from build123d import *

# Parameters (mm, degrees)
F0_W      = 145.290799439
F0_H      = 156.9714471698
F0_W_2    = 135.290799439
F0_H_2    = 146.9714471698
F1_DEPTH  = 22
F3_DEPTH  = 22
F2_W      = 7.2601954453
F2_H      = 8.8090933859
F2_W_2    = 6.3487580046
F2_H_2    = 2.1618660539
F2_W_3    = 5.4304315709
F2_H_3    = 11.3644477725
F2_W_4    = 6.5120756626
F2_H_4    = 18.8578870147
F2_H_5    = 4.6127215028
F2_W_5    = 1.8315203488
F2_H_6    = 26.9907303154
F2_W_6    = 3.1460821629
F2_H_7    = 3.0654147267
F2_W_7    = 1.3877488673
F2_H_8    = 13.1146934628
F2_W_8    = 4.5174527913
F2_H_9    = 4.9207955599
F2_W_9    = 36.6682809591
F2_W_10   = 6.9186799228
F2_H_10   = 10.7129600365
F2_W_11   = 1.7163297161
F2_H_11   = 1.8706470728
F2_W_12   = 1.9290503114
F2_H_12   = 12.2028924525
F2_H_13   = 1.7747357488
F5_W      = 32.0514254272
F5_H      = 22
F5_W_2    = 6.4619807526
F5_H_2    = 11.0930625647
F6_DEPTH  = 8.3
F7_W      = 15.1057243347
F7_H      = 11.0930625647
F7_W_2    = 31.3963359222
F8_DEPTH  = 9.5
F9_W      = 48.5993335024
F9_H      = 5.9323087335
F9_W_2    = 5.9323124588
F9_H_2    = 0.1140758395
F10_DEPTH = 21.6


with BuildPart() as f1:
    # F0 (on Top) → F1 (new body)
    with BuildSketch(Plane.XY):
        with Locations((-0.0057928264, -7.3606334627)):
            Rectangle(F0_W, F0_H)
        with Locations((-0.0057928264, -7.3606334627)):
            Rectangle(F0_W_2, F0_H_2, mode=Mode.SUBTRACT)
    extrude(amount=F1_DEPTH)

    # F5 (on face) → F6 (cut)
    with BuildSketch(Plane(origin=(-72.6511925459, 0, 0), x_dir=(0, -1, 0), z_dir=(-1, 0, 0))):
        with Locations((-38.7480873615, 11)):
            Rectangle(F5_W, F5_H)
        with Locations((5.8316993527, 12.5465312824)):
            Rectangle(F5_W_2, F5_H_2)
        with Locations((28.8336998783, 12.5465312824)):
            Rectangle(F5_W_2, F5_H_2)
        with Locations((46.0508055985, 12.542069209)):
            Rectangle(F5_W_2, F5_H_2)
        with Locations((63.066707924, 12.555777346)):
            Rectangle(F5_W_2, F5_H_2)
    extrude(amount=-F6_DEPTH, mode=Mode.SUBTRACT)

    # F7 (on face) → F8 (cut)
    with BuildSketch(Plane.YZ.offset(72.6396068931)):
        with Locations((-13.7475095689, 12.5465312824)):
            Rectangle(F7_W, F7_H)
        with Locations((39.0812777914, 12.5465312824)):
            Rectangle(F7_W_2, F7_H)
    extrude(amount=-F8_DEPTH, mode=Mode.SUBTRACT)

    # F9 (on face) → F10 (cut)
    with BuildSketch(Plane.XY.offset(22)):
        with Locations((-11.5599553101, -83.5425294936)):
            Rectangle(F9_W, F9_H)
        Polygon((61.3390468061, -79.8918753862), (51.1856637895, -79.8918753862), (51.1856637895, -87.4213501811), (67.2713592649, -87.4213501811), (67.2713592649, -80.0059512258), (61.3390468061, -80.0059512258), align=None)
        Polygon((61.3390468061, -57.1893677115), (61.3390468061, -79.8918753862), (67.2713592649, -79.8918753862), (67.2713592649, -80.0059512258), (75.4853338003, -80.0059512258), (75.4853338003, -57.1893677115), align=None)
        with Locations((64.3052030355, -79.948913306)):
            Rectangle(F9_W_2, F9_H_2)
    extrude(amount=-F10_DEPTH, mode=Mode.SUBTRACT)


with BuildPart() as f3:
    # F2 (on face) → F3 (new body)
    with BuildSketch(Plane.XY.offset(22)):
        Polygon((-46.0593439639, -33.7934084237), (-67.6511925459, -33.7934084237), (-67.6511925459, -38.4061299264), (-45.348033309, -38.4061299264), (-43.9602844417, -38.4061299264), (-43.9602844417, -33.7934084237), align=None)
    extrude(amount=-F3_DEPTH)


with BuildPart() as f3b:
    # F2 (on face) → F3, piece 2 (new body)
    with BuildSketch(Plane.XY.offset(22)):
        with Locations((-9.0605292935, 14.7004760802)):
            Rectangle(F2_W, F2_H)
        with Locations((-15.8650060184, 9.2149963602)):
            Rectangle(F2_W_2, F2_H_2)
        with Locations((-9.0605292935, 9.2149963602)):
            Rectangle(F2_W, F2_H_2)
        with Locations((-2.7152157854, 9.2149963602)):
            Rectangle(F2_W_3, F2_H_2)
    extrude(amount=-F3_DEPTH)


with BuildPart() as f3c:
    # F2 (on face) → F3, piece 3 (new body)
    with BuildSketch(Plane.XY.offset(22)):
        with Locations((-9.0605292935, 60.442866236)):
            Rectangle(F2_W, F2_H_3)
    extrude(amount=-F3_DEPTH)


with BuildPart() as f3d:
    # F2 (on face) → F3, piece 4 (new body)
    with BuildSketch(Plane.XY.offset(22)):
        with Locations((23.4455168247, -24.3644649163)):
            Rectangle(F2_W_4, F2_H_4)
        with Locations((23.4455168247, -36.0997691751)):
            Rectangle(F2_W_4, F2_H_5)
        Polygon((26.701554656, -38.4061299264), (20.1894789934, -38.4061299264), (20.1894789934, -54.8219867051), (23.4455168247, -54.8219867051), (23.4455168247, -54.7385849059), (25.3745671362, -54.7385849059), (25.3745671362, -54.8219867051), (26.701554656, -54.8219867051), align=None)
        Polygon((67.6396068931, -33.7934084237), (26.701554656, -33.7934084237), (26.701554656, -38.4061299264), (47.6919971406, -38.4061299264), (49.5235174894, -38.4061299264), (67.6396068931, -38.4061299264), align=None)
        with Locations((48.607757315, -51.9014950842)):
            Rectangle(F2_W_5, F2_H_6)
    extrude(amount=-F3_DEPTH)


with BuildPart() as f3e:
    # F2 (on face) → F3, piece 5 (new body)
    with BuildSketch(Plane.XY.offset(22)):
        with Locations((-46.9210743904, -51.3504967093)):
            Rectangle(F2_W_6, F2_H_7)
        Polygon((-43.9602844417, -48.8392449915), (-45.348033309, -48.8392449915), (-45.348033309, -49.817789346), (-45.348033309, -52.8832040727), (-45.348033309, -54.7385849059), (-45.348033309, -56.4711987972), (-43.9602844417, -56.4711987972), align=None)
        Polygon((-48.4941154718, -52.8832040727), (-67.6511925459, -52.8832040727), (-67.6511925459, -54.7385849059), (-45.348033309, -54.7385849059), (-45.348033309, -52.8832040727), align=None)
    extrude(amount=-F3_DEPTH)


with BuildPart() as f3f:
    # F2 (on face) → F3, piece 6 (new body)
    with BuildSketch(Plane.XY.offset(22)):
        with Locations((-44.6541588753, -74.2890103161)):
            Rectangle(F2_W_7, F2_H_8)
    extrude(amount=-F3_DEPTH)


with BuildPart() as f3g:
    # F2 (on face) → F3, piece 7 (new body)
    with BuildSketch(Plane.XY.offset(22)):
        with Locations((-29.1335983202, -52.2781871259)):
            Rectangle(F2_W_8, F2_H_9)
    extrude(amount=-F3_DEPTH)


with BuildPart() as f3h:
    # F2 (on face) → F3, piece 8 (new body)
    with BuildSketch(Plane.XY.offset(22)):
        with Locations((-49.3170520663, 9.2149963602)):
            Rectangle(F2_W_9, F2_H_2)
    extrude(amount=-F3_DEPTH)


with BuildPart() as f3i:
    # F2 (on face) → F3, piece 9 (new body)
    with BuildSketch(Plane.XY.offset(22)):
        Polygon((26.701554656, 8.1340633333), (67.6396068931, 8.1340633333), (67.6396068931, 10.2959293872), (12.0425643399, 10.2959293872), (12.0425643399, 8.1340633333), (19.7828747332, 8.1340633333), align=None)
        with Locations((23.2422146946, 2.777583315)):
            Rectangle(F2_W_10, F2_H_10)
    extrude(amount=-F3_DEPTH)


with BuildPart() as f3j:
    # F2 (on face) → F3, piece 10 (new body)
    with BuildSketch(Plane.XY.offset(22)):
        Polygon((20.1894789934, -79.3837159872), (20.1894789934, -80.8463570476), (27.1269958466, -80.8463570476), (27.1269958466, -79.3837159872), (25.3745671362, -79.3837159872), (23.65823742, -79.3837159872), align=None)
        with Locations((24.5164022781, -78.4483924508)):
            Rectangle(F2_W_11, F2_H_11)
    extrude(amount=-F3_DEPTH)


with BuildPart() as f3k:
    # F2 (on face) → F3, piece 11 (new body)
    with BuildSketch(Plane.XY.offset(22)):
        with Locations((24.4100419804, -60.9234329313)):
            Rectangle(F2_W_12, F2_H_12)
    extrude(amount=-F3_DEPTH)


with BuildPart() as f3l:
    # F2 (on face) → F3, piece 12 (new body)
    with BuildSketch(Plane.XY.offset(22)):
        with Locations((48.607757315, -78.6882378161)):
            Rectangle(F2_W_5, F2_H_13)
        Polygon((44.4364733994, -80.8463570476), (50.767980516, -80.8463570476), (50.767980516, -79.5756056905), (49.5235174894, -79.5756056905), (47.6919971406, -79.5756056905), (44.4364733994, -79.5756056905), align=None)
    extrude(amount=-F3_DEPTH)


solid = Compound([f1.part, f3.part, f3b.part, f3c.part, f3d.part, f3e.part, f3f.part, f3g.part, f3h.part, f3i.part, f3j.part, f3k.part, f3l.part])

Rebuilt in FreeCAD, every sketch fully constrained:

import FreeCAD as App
import Part
import Sketcher
Q = App.Units.Quantity


def add_polygon(sketch, points):
    """Adds a closed chain of lines whose ends are joined by coincident constraints."""
    first, n = sketch.GeometryCount, len(points)
    for a, b in zip(points, points[1:] + points[:1]):
        sketch.addGeometry(Part.LineSegment(App.Vector(*a, 0), App.Vector(*b, 0)), False)
    for i in range(n):
        sketch.addConstraint(Sketcher.Constraint("Coincident", first + i, 2, first + (i + 1) % n, 1))

doc = App.newDocument("Part")
body = doc.addObject("PartDesign::Body", "Body")

# Sketch on XY plane
sketch1 = body.newObject("Sketcher::SketchObject", "Sketch")
sketch1.AttachmentSupport = (doc.getObject("XY_Plane"), [""])
sketch1.MapMode = "FlatFace"
add_polygon(sketch1, [(-73, 71), (-73, -86), (73, -86), (73, 71)])  # lines 0-3
add_polygon(sketch1, [(68, -81), (-68, -81), (-68, 66), (68, 66)])  # lines 4-7
sketch1.addConstraint([
    Sketcher.Constraint("Vertical", 0),
    Sketcher.Constraint("Horizontal", 1),
    Sketcher.Constraint("Vertical", 2),
    Sketcher.Constraint("Horizontal", 3),
    Sketcher.Constraint("Horizontal", 4),
    Sketcher.Constraint("Vertical", 5),
    Sketcher.Constraint("Horizontal", 6),
    Sketcher.Constraint("Vertical", 7),
    Sketcher.Constraint("DistanceX", 0, 2, 4, 2, Q("5 mm")),
    Sketcher.Constraint("DistanceY", 0, 2, 4, 2, Q("5 mm")),
    Sketcher.Constraint("DistanceY", 5, 2, 3, 2, Q("5 mm")),
    Sketcher.Constraint("DistanceX", 6, 2, 2, 2, Q("5 mm")),
    Sketcher.Constraint("DistanceX", 1, 1, 1, 2, Q("145.290799 mm")),
    Sketcher.Constraint("DistanceY", 0, 2, 0, 1, Q("156.971447 mm")),
    Sketcher.Constraint("DistanceY", -1, 1, 2, 2, Q("71.12509 mm")),
    Sketcher.Constraint("DistanceX", 0, 2, -1, 1, Q("72.651193 mm")),
])
pad1 = body.newObject("PartDesign::Pad", "Pad")
pad1.Profile = sketch1
pad1.Length = 22

# Sketch on YZ plane
sketch2 = body.newObject("Sketcher::SketchObject", "Sketch001")
sketch2.AttachmentSupport = (doc.getObject("YZ_Plane"), [""])
sketch2.MapMode = "FlatFace"
sketch2.AttachmentOffset = App.Placement(App.Vector(0, 0, -72.651193), App.Rotation())
add_polygon(sketch2, [(55, 22), (55, 0), (23, 0), (23, 22)])  # lines 0-3
add_polygon(sketch2, [(-3, 18), (-3, 7), (-9, 7), (-9, 18)])  # lines 4-7
add_polygon(sketch2, [(-26, 18), (-26, 7), (-32, 7), (-32, 18)])  # lines 8-11
add_polygon(sketch2, [(-43, 18), (-43, 7), (-49, 7), (-49, 18)])  # lines 12-15
add_polygon(sketch2, [(-60, 18), (-60, 7), (-66, 7), (-66, 18)])  # lines 16-19
sketch2.addConstraint([
    Sketcher.Constraint("Vertical", 0),
    Sketcher.Constraint("Horizontal", 1),
    Sketcher.Constraint("Vertical", 2),
    Sketcher.Constraint("Horizontal", 3),
    Sketcher.Constraint("Vertical", 4),
    Sketcher.Constraint("Horizontal", 5),
    Sketcher.Constraint("Vertical", 6),
    Sketcher.Constraint("Horizontal", 7),
    Sketcher.Constraint("Vertical", 8),
    Sketcher.Constraint("Horizontal", 9),
    Sketcher.Constraint("Vertical", 10),
    Sketcher.Constraint("Horizontal", 11),
    Sketcher.Constraint("Vertical", 12),
    Sketcher.Constraint("Horizontal", 13),
    Sketcher.Constraint("Vertical", 14),
    Sketcher.Constraint("Horizontal", 15),
    Sketcher.Constraint("Vertical", 16),
    Sketcher.Constraint("Horizontal", 17),
    Sketcher.Constraint("Vertical", 18),
    Sketcher.Constraint("Horizontal", 19),
    Sketcher.Constraint("PointOnObject", 0, 2, -1),
    Sketcher.Constraint("Horizontal", 5, 2, 8, 2),
    Sketcher.Constraint("Horizontal", 7, 2, 10, 2),
    Sketcher.Constraint("Equal", 7, 9),
    Sketcher.Constraint("Equal", 11, 13),
    Sketcher.Constraint("Equal", 15, 17),
    Sketcher.Constraint("Equal", 10, 12),
    Sketcher.Constraint("Equal", 14, 16),
    Sketcher.Constraint("DistanceY", 0, 2, 0, 1, Q("22 mm")),
    Sketcher.Constraint("DistanceY", -1, 1, 4, 2, Q("7 mm")),
    Sketcher.Constraint("DistanceX", 8, 2, 4, 2, Q("23.002001 mm")),
    Sketcher.Constraint("DistanceX", 5, 2, 5, 1, Q("6.461981 mm")),
    Sketcher.Constraint("DistanceX", -1, 1, 0, 2, Q("54.7738 mm")),
    Sketcher.Constraint("DistanceY", -1, 1, 14, 2, Q("18.0886 mm")),
    Sketcher.Constraint("DistanceX", 17, 2, -1, 1, Q("66.297698 mm")),
    Sketcher.Constraint("DistanceX", 1, 2, 1, 1, Q("32.051425 mm")),
    Sketcher.Constraint("DistanceY", 4, 2, 4, 1, Q("11.093063 mm")),
    Sketcher.Constraint("DistanceX", 4, 2, -1, 1, Q("2.600709 mm")),
    Sketcher.Constraint("DistanceY", -1, 1, 18, 2, Q("18.102309 mm")),
    Sketcher.Constraint("DistanceX", 16, 2, 13, 2, Q("10.553922 mm")),
])
pocket1 = body.newObject("PartDesign::Pocket", "Pocket")
pocket1.Profile = sketch2
pocket1.Length = 8.3
pocket1.Reversed = True

# Sketch on YZ plane
sketch3 = body.newObject("Sketcher::SketchObject", "Sketch002")
sketch3.AttachmentSupport = (doc.getObject("YZ_Plane"), [""])
sketch3.MapMode = "FlatFace"
sketch3.AttachmentOffset = App.Placement(App.Vector(0, 0, 72.639607), App.Rotation())
add_polygon(sketch3, [(-21, 18), (-21, 7), (-6, 7), (-6, 18)])  # lines 0-3
add_polygon(sketch3, [(23, 18), (23, 7), (55, 7), (55, 18)])  # lines 4-7
sketch3.addConstraint([
    Sketcher.Constraint("Vertical", 0),
    Sketcher.Constraint("Horizontal", 1),
    Sketcher.Constraint("Vertical", 2),
    Sketcher.Constraint("Horizontal", 3),
    Sketcher.Constraint("Vertical", 4),
    Sketcher.Constraint("Horizontal", 5),
    Sketcher.Constraint("Vertical", 6),
    Sketcher.Constraint("Horizontal", 7),
    Sketcher.Constraint("Horizontal", 1, 2, 4, 2),
    Sketcher.Constraint("Horizontal", 3, 2, 6, 2),
    Sketcher.Constraint("DistanceY", -1, 1, 0, 2, Q("7 mm")),
    Sketcher.Constraint("DistanceX", 1, 1, 1, 2, Q("15.105724 mm")),
    Sketcher.Constraint("DistanceX", 5, 1, 5, 2, Q("31.396336 mm")),
    Sketcher.Constraint("DistanceY", 0, 2, 0, 1, Q("11.093063 mm")),
    Sketcher.Constraint("DistanceX", 0, 2, -1, 1, Q("21.300372 mm")),
    Sketcher.Constraint("DistanceX", -1, 1, 4, 2, Q("23.38311 mm")),
])
pocket2 = body.newObject("PartDesign::Pocket", "Pocket001")
pocket2.Profile = sketch3
pocket2.Length = 9.5

# Sketch on XY plane
sketch4 = body.newObject("Sketcher::SketchObject", "Sketch003")
sketch4.AttachmentSupport = (doc.getObject("XY_Plane"), [""])
sketch4.MapMode = "FlatFace"
sketch4.AttachmentOffset = App.Placement(App.Vector(0, 0, 22), App.Rotation())
add_polygon(sketch4, [(-36, -81), (-36, -87), (13, -87), (13, -81)])  # lines 0-3
add_polygon(sketch4, [(61, -80), (51, -80), (51, -87), (67, -87), (67, -80), (75, -80), (75, -57), (61, -57)])  # lines 4-11
sketch4.addConstraint([
    Sketcher.Constraint("Vertical", 0),
    Sketcher.Constraint("Horizontal", 1),
    Sketcher.Constraint("Vertical", 2),
    Sketcher.Constraint("Horizontal", 3),
    Sketcher.Constraint("Horizontal", 4),
    Sketcher.Constraint("Vertical", 5),
    Sketcher.Constraint("Horizontal", 6),
    Sketcher.Constraint("Vertical", 7),
    Sketcher.Constraint("Horizontal", 8),
    Sketcher.Constraint("Vertical", 9),
    Sketcher.Constraint("Horizontal", 10),
    Sketcher.Constraint("Vertical", 11),
    Sketcher.Constraint("DistanceY", 7, 1, 7, 2, Q("7.415399 mm")),
    Sketcher.Constraint("DistanceY", 0, 2, 0, 1, Q("5.932309 mm")),
    Sketcher.Constraint("DistanceY", 2, 2, 4, 2, Q("0.6845 mm")),
    Sketcher.Constraint("DistanceX", 1, 1, 1, 2, Q("48.599334 mm")),
    Sketcher.Constraint("DistanceX", 4, 2, 4, 1, Q("10.153383 mm")),
    Sketcher.Constraint("DistanceX", 6, 1, 6, 2, Q("16.085695 mm")),
    Sketcher.Constraint("DistanceX", 8, 1, 8, 2, Q("8.213975 mm")),
    Sketcher.Constraint("DistanceY", 5, 2, 5, 1, Q("7.529475 mm")),
    Sketcher.Constraint("DistanceY", 9, 1, 9, 2, Q("22.816584 mm")),
    Sketcher.Constraint("DistanceX", -1, 1, 1, 2, Q("12.739711 mm")),
    Sketcher.Constraint("DistanceY", 5, 2, -1, 1, Q("87.42135 mm")),
    Sketcher.Constraint("DistanceX", -1, 1, 6, 2, Q("67.271359 mm")),
])
pocket3 = body.newObject("PartDesign::Pocket", "Pocket002")
pocket3.Profile = sketch4
pocket3.Length = 21.6
body2 = doc.addObject("PartDesign::Body", "Body001")

# Sketch on XY plane
sketch5 = body2.newObject("Sketcher::SketchObject", "Sketch004")
sketch5.AttachmentSupport = (doc.getObject("XY_Plane001"), [""])
sketch5.MapMode = "FlatFace"
sketch5.AttachmentOffset = App.Placement(App.Vector(0, 0, 22), App.Rotation())
add_polygon(sketch5, [(-67.7, -33.8), (-67.7, -38.4), (-44, -38.4), (-44, -33.8)])  # lines 0-3
sketch5.addConstraint([
    Sketcher.Constraint("Vertical", 0),
    Sketcher.Constraint("Horizontal", 1),
    Sketcher.Constraint("Vertical", 2),
    Sketcher.Constraint("Horizontal", 3),
    Sketcher.Constraint("DistanceX", 1, 1, 1, 2, Q("23.690908 mm")),
    Sketcher.Constraint("DistanceY", 0, 2, 0, 1, Q("4.612722 mm")),
    Sketcher.Constraint("DistanceY", 0, 2, -1, 1, Q("38.40613 mm")),
    Sketcher.Constraint("DistanceX", 0, 2, -1, 1, Q("67.651193 mm")),
])
pad2 = body2.newObject("PartDesign::Pad", "Pad001")
pad2.Profile = sketch5
pad2.Length = 22
pad2.Reversed = True
body3 = doc.addObject("PartDesign::Body", "Body002")

# Sketch on XY plane
sketch6 = body3.newObject("Sketcher::SketchObject", "Sketch005")
sketch6.AttachmentSupport = (doc.getObject("XY_Plane002"), [""])
sketch6.MapMode = "FlatFace"
sketch6.AttachmentOffset = App.Placement(App.Vector(0, 0, 22), App.Rotation())
add_polygon(sketch6, [(-12.7, 19.1), (-12.7, 10.3), (-19, 10.3), (-19, 8.1), (0, 8.1), (0, 10.3), (-5.4, 10.3), (-5.4, 19.1)])  # lines 0-7
sketch6.addConstraint([
    Sketcher.Constraint("Vertical", 0),
    Sketcher.Constraint("Horizontal", 1),
    Sketcher.Constraint("Vertical", 2),
    Sketcher.Constraint("Horizontal", 3),
    Sketcher.Constraint("Vertical", 4),
    Sketcher.Constraint("Horizontal", 5),
    Sketcher.Constraint("Vertical", 6),
    Sketcher.Constraint("Horizontal", 7),
    Sketcher.Constraint("PointOnObject", 3, 2, -2),
    Sketcher.Constraint("Horizontal", 1, 2, 4, 2),
    Sketcher.Constraint("DistanceX", 1, 2, 1, 1, Q("6.348758 mm")),
    Sketcher.Constraint("DistanceX", 5, 2, 5, 1, Q("5.430432 mm")),
    Sketcher.Constraint("DistanceX", 3, 1, 3, 2, Q("19.039385 mm")),
    Sketcher.Constraint("DistanceY", 0, 2, 0, 1, Q("8.809093 mm")),
    Sketcher.Constraint("DistanceY", 2, 2, 2, 1, Q("2.161866 mm")),
    Sketcher.Constraint("DistanceY", -1, 1, 0, 2, Q("10.295929 mm")),
])
pad3 = body3.newObject("PartDesign::Pad", "Pad002")
pad3.Profile = sketch6
pad3.Length = 22
pad3.Reversed = True
body4 = doc.addObject("PartDesign::Body", "Body003")

# Sketch on XY plane
sketch7 = body4.newObject("Sketcher::SketchObject", "Sketch006")
sketch7.AttachmentSupport = (doc.getObject("XY_Plane003"), [""])
sketch7.MapMode = "FlatFace"
sketch7.AttachmentOffset = App.Placement(App.Vector(0, 0, 22), App.Rotation())
add_polygon(sketch7, [(-13, 66), (-13, 55), (-5, 55), (-5, 66)])  # lines 0-3
sketch7.addConstraint([
    Sketcher.Constraint("Vertical", 0),
    Sketcher.Constraint("Horizontal", 1),
    Sketcher.Constraint("Vertical", 2),
    Sketcher.Constraint("Horizontal", 3),
    Sketcher.Constraint("DistanceX", 1, 1, 1, 2, Q("7.260195 mm")),
    Sketcher.Constraint("DistanceY", 0, 2, 0, 1, Q("11.364448 mm")),
    Sketcher.Constraint("DistanceX", 1, 2, -1, 1, Q("5.430432 mm")),
    Sketcher.Constraint("DistanceY", -1, 1, 2, 2, Q("66.12509 mm")),
])
pad4 = body4.newObject("PartDesign::Pad", "Pad003")
pad4.Profile = sketch7
pad4.Length = 22
pad4.Reversed = True
body5 = doc.addObject("PartDesign::Body", "Body004")

# Sketch on XY plane
sketch8 = body5.newObject("Sketcher::SketchObject", "Sketch007")
sketch8.AttachmentSupport = (doc.getObject("XY_Plane004"), [""])
sketch8.MapMode = "FlatFace"
sketch8.AttachmentOffset = App.Placement(App.Vector(0, 0, 22), App.Rotation())
add_polygon(sketch8, [(20.19, -14.94), (20.19, -54.82), (23.45, -54.82), (23.45, -54.74), (25.37, -54.74), (25.37, -54.82), (26.7, -54.82), (26.7, -38.41), (47.69, -38.41), (47.69, -65.4), (49.52, -65.4), (49.52, -38.41), (67.64, -38.41), (67.64, -33.79), (26.7, -33.79), (26.7, -14.94)])  # lines 0-15
sketch8.addConstraint([
    Sketcher.Constraint("Vertical", 0),
    Sketcher.Constraint("Horizontal", 1),
    Sketcher.Constraint("Vertical", 2),
    Sketcher.Constraint("Horizontal", 3),
    Sketcher.Constraint("Vertical", 4),
    Sketcher.Constraint("Horizontal", 5),
    Sketcher.Constraint("Vertical", 6),
    Sketcher.Constraint("Horizontal", 7),
    Sketcher.Constraint("Vertical", 8),
    Sketcher.Constraint("Horizontal", 9),
    Sketcher.Constraint("Vertical", 10),
    Sketcher.Constraint("Horizontal", 11),
    Sketcher.Constraint("Vertical", 12),
    Sketcher.Constraint("Horizontal", 13),
    Sketcher.Constraint("Vertical", 14),
    Sketcher.Constraint("Horizontal", 15),
    Sketcher.Constraint("Horizontal", 1, 2, 4, 2),
    Sketcher.Constraint("Horizontal", 7, 2, 10, 2),
    Sketcher.Constraint("Vertical", 6, 2, 13, 2),
    Sketcher.Constraint("DistanceY", 2, 1, 2, 2, Q("0.083402 mm")),
    Sketcher.Constraint("DistanceX", 3, 1, 3, 2, Q("1.92905 mm")),
    Sketcher.Constraint("DistanceX", 9, 1, 9, 2, Q("1.83152 mm")),
    Sketcher.Constraint("DistanceX", 11, 1, 11, 2, Q("18.116089 mm")),
    Sketcher.Constraint("DistanceY", 8, 2, 8, 1, Q("26.99073 mm")),
    Sketcher.Constraint("DistanceY", 12, 1, 12, 2, Q("4.612722 mm")),
    Sketcher.Constraint("DistanceX", 1, 1, 1, 2, Q("3.256038 mm")),
    Sketcher.Constraint("DistanceX", 5, 1, 5, 2, Q("1.326988 mm")),
    Sketcher.Constraint("DistanceX", 7, 1, 7, 2, Q("20.990442 mm")),
    Sketcher.Constraint("DistanceY", 0, 2, 0, 1, Q("39.886465 mm")),
    Sketcher.Constraint("DistanceY", 6, 1, 6, 2, Q("16.415857 mm")),
    Sketcher.Constraint("DistanceX", -1, 1, 0, 2, Q("20.189479 mm")),
    Sketcher.Constraint("DistanceY", 6, 2, -1, 1, Q("38.40613 mm")),
])
pad5 = body5.newObject("PartDesign::Pad", "Pad004")
pad5.Profile = sketch8
pad5.Length = 22
pad5.Reversed = True
body6 = doc.addObject("PartDesign::Body", "Body005")

# Sketch on XY plane
sketch9 = body6.newObject("Sketcher::SketchObject", "Sketch008")
sketch9.AttachmentSupport = (doc.getObject("XY_Plane005"), [""])
sketch9.MapMode = "FlatFace"
sketch9.AttachmentOffset = App.Placement(App.Vector(0, 0, 22), App.Rotation())
add_polygon(sketch9, [(-48.5, -49.8), (-48.5, -52.9), (-67.7, -52.9), (-67.7, -54.7), (-45.3, -54.7), (-45.3, -56.5), (-44, -56.5), (-44, -48.8), (-45.3, -48.8), (-45.3, -49.8)])  # lines 0-9
sketch9.addConstraint([
    Sketcher.Constraint("Vertical", 0),
    Sketcher.Constraint("Horizontal", 1),
    Sketcher.Constraint("Vertical", 2),
    Sketcher.Constraint("Horizontal", 3),
    Sketcher.Constraint("Vertical", 4),
    Sketcher.Constraint("Horizontal", 5),
    Sketcher.Constraint("Vertical", 6),
    Sketcher.Constraint("Horizontal", 7),
    Sketcher.Constraint("Vertical", 8),
    Sketcher.Constraint("Horizontal", 9),
    Sketcher.Constraint("Vertical", 4, 2, 7, 2),
    Sketcher.Constraint("DistanceX", 3, 1, 3, 2, Q("22.303159 mm")),
    Sketcher.Constraint("DistanceX", 5, 1, 5, 2, Q("1.387749 mm")),
    Sketcher.Constraint("DistanceY", 2, 2, 2, 1, Q("1.855381 mm")),
    Sketcher.Constraint("DistanceY", 4, 2, -1, 1, Q("56.471199 mm")),
    Sketcher.Constraint("DistanceX", 1, 2, 1, 1, Q("19.157077 mm")),
    Sketcher.Constraint("DistanceY", 0, 2, 0, 1, Q("3.065415 mm")),
    Sketcher.Constraint("DistanceY", 4, 2, 4, 1, Q("1.732614 mm")),
    Sketcher.Constraint("DistanceY", 6, 1, 6, 2, Q("7.631954 mm")),
    Sketcher.Constraint("DistanceX", 0, 2, -1, 1, Q("48.494115 mm")),
])
pad6 = body6.newObject("PartDesign::Pad", "Pad005")
pad6.Profile = sketch9
pad6.Length = 22
pad6.Reversed = True
body7 = doc.addObject("PartDesign::Body", "Body006")

# Sketch on XY plane
sketch10 = body7.newObject("Sketcher::SketchObject", "Sketch009")
sketch10.AttachmentSupport = (doc.getObject("XY_Plane006"), [""])
sketch10.MapMode = "FlatFace"
sketch10.AttachmentOffset = App.Placement(App.Vector(0, 0, 22), App.Rotation())
add_polygon(sketch10, [(-45.3, -67.7), (-45.3, -80.8), (-44, -80.8), (-44, -67.7)])  # lines 0-3
sketch10.addConstraint([
    Sketcher.Constraint("Vertical", 0),
    Sketcher.Constraint("Horizontal", 1),
    Sketcher.Constraint("Vertical", 2),
    Sketcher.Constraint("Horizontal", 3),
    Sketcher.Constraint("DistanceX", 1, 1, 1, 2, Q("1.387749 mm")),
    Sketcher.Constraint("DistanceY", 0, 2, 0, 1, Q("13.114693 mm")),
    Sketcher.Constraint("DistanceX", 0, 2, -1, 1, Q("45.348033 mm")),
    Sketcher.Constraint("DistanceY", 0, 2, -1, 1, Q("80.846357 mm")),
])
pad7 = body7.newObject("PartDesign::Pad", "Pad006")
pad7.Profile = sketch10
pad7.Length = 22
pad7.Reversed = True
body8 = doc.addObject("PartDesign::Body", "Body007")

# Sketch on XY plane
sketch11 = body8.newObject("Sketcher::SketchObject", "Sketch010")
sketch11.AttachmentSupport = (doc.getObject("XY_Plane007"), [""])
sketch11.MapMode = "FlatFace"
sketch11.AttachmentOffset = App.Placement(App.Vector(0, 0, 22), App.Rotation())
add_polygon(sketch11, [(-31.4, -49.8), (-31.4, -54.7), (-26.9, -54.7), (-26.9, -49.8)])  # lines 0-3
sketch11.addConstraint([
    Sketcher.Constraint("Vertical", 0),
    Sketcher.Constraint("Horizontal", 1),
    Sketcher.Constraint("Vertical", 2),
    Sketcher.Constraint("Horizontal", 3),
    Sketcher.Constraint("DistanceX", 1, 1, 1, 2, Q("4.517453 mm")),
    Sketcher.Constraint("DistanceY", 0, 2, 0, 1, Q("4.920796 mm")),
    Sketcher.Constraint("DistanceX", 1, 2, -1, 1, Q("26.874872 mm")),
    Sketcher.Constraint("DistanceY", 2, 2, -1, 1, Q("49.817789 mm")),
])
pad8 = body8.newObject("PartDesign::Pad", "Pad007")
pad8.Profile = sketch11
pad8.Length = 22
pad8.Reversed = True
body9 = doc.addObject("PartDesign::Body", "Body008")

# Sketch on XY plane
sketch12 = body9.newObject("Sketcher::SketchObject", "Sketch011")
sketch12.AttachmentSupport = (doc.getObject("XY_Plane008"), [""])
sketch12.MapMode = "FlatFace"
sketch12.AttachmentOffset = App.Placement(App.Vector(0, 0, 22), App.Rotation())
add_polygon(sketch12, [(-67.7, 10.3), (-67.7, 8.1), (-31, 8.1), (-31, 10.3)])  # lines 0-3
sketch12.addConstraint([
    Sketcher.Constraint("Vertical", 0),
    Sketcher.Constraint("Horizontal", 1),
    Sketcher.Constraint("Vertical", 2),
    Sketcher.Constraint("Horizontal", 3),
    Sketcher.Constraint("DistanceX", 1, 1, 1, 2, Q("36.668281 mm")),
    Sketcher.Constraint("DistanceY", 0, 2, 0, 1, Q("2.161866 mm")),
    Sketcher.Constraint("DistanceX", 1, 2, -1, 1, Q("30.982912 mm")),
    Sketcher.Constraint("DistanceY", -1, 1, 2, 2, Q("10.295929 mm")),
])
pad9 = body9.newObject("PartDesign::Pad", "Pad008")
pad9.Profile = sketch12
pad9.Length = 22
pad9.Reversed = True
body10 = doc.addObject("PartDesign::Body", "Body009")

# Sketch on XY plane
sketch13 = body10.newObject("Sketcher::SketchObject", "Sketch012")
sketch13.AttachmentSupport = (doc.getObject("XY_Plane009"), [""])
sketch13.MapMode = "FlatFace"
sketch13.AttachmentOffset = App.Placement(App.Vector(0, 0, 22), App.Rotation())
add_polygon(sketch13, [(67.6, 8.1), (67.6, 10.3), (12, 10.3), (12, 8.1), (19.8, 8.1), (19.8, -2.6), (26.7, -2.6), (26.7, 8.1)])  # lines 0-7
sketch13.addConstraint([
    Sketcher.Constraint("Vertical", 0),
    Sketcher.Constraint("Horizontal", 1),
    Sketcher.Constraint("Vertical", 2),
    Sketcher.Constraint("Horizontal", 3),
    Sketcher.Constraint("Vertical", 4),
    Sketcher.Constraint("Horizontal", 5),
    Sketcher.Constraint("Vertical", 6),
    Sketcher.Constraint("Horizontal", 7),
    Sketcher.Constraint("Horizontal", 3, 2, 6, 2),
    Sketcher.Constraint("DistanceX", 3, 1, 3, 2, Q("7.74031 mm")),
    Sketcher.Constraint("DistanceX", 5, 1, 5, 2, Q("6.91868 mm")),
    Sketcher.Constraint("DistanceY", 4, 2, 4, 1, Q("10.71296 mm")),
    Sketcher.Constraint("DistanceX", 1, 2, 1, 1, Q("55.597043 mm")),
    Sketcher.Constraint("DistanceY", 0, 1, 0, 2, Q("2.161866 mm")),
    Sketcher.Constraint("DistanceY", -1, 1, 0, 2, Q("10.295929 mm")),
    Sketcher.Constraint("DistanceX", -1, 1, 0, 2, Q("67.639607 mm")),
])
pad10 = body10.newObject("PartDesign::Pad", "Pad009")
pad10.Profile = sketch13
pad10.Length = 22
pad10.Reversed = True
body11 = doc.addObject("PartDesign::Body", "Body010")

# Sketch on XY plane
sketch14 = body11.newObject("Sketcher::SketchObject", "Sketch013")
sketch14.AttachmentSupport = (doc.getObject("XY_Plane010"), [""])
sketch14.MapMode = "FlatFace"
sketch14.AttachmentOffset = App.Placement(App.Vector(0, 0, 22), App.Rotation())
add_polygon(sketch14, [(20.2, -79.4), (20.2, -80.8), (27.1, -80.8), (27.1, -79.4), (25.4, -79.4), (25.4, -77.5), (23.7, -77.5), (23.7, -79.4)])  # lines 0-7
sketch14.addConstraint([
    Sketcher.Constraint("Vertical", 0),
    Sketcher.Constraint("Horizontal", 1),
    Sketcher.Constraint("Vertical", 2),
    Sketcher.Constraint("Horizontal", 3),
    Sketcher.Constraint("Vertical", 4),
    Sketcher.Constraint("Horizontal", 5),
    Sketcher.Constraint("Vertical", 6),
    Sketcher.Constraint("Horizontal", 7),
    Sketcher.Constraint("Horizontal", 3, 2, 6, 2),
    Sketcher.Constraint("DistanceX", 3, 2, 3, 1, Q("1.752429 mm")),
    Sketcher.Constraint("DistanceX", 5, 2, 5, 1, Q("1.71633 mm")),
    Sketcher.Constraint("DistanceX", 7, 2, 7, 1, Q("3.468758 mm")),
    Sketcher.Constraint("DistanceY", 0, 2, 0, 1, Q("1.462641 mm")),
    Sketcher.Constraint("DistanceY", 4, 1, 4, 2, Q("1.870647 mm")),
    Sketcher.Constraint("DistanceX", -1, 1, 0, 2, Q("20.189479 mm")),
    Sketcher.Constraint("DistanceY", 4, 2, -1, 1, Q("77.513069 mm")),
])
pad11 = body11.newObject("PartDesign::Pad", "Pad010")
pad11.Profile = sketch14
pad11.Length = 22
pad11.Reversed = True
body12 = doc.addObject("PartDesign::Body", "Body011")

# Sketch on XY plane
sketch15 = body12.newObject("Sketcher::SketchObject", "Sketch014")
sketch15.AttachmentSupport = (doc.getObject("XY_Plane011"), [""])
sketch15.MapMode = "FlatFace"
sketch15.AttachmentOffset = App.Placement(App.Vector(0, 0, 22), App.Rotation())
add_polygon(sketch15, [(23.4, -54.8), (23.4, -67), (25.4, -67), (25.4, -54.8)])  # lines 0-3
sketch15.addConstraint([
    Sketcher.Constraint("Vertical", 0),
    Sketcher.Constraint("Horizontal", 1),
    Sketcher.Constraint("Vertical", 2),
    Sketcher.Constraint("Horizontal", 3),
    Sketcher.Constraint("DistanceX", 1, 1, 1, 2, Q("1.92905 mm")),
    Sketcher.Constraint("DistanceY", 0, 2, 0, 1, Q("12.202892 mm")),
    Sketcher.Constraint("DistanceY", 0, 2, -1, 1, Q("67.024879 mm")),
    Sketcher.Constraint("DistanceX", -1, 1, 0, 2, Q("23.445517 mm")),
])
pad12 = body12.newObject("PartDesign::Pad", "Pad011")
pad12.Profile = sketch15
pad12.Length = 22
pad12.Reversed = True
body13 = doc.addObject("PartDesign::Body", "Body012")

# Sketch on XY plane
sketch16 = body13.newObject("Sketcher::SketchObject", "Sketch015")
sketch16.AttachmentSupport = (doc.getObject("XY_Plane012"), [""])
sketch16.MapMode = "FlatFace"
sketch16.AttachmentOffset = App.Placement(App.Vector(0, 0, 22), App.Rotation())
add_polygon(sketch16, [(47.7, -77.8), (47.7, -79.6), (44.4, -79.6), (44.4, -80.8), (50.8, -80.8), (50.8, -79.6), (49.5, -79.6), (49.5, -77.8)])  # lines 0-7
sketch16.addConstraint([
    Sketcher.Constraint("Vertical", 0),
    Sketcher.Constraint("Horizontal", 1),
    Sketcher.Constraint("Vertical", 2),
    Sketcher.Constraint("Horizontal", 3),
    Sketcher.Constraint("Vertical", 4),
    Sketcher.Constraint("Horizontal", 5),
    Sketcher.Constraint("Vertical", 6),
    Sketcher.Constraint("Horizontal", 7),
    Sketcher.Constraint("Horizontal", 1, 2, 4, 2),
    Sketcher.Constraint("DistanceX", 7, 2, 7, 1, Q("1.83152 mm")),
    Sketcher.Constraint("DistanceY", 2, 2, 2, 1, Q("1.270751 mm")),
    Sketcher.Constraint("DistanceX", 1, 2, 1, 1, Q("3.255524 mm")),
    Sketcher.Constraint("DistanceX", 3, 1, 3, 2, Q("6.331507 mm")),
    Sketcher.Constraint("DistanceY", 0, 2, 0, 1, Q("1.774736 mm")),
    Sketcher.Constraint("DistanceX", -1, 1, 3, 2, Q("50.767981 mm")),
    Sketcher.Constraint("DistanceY", 6, 2, -1, 1, Q("77.80087 mm")),
])
pad13 = body13.newObject("PartDesign::Pad", "Pad012")
pad13.Profile = sketch16
pad13.Length = 22
pad13.Reversed = True

doc.recompute()
